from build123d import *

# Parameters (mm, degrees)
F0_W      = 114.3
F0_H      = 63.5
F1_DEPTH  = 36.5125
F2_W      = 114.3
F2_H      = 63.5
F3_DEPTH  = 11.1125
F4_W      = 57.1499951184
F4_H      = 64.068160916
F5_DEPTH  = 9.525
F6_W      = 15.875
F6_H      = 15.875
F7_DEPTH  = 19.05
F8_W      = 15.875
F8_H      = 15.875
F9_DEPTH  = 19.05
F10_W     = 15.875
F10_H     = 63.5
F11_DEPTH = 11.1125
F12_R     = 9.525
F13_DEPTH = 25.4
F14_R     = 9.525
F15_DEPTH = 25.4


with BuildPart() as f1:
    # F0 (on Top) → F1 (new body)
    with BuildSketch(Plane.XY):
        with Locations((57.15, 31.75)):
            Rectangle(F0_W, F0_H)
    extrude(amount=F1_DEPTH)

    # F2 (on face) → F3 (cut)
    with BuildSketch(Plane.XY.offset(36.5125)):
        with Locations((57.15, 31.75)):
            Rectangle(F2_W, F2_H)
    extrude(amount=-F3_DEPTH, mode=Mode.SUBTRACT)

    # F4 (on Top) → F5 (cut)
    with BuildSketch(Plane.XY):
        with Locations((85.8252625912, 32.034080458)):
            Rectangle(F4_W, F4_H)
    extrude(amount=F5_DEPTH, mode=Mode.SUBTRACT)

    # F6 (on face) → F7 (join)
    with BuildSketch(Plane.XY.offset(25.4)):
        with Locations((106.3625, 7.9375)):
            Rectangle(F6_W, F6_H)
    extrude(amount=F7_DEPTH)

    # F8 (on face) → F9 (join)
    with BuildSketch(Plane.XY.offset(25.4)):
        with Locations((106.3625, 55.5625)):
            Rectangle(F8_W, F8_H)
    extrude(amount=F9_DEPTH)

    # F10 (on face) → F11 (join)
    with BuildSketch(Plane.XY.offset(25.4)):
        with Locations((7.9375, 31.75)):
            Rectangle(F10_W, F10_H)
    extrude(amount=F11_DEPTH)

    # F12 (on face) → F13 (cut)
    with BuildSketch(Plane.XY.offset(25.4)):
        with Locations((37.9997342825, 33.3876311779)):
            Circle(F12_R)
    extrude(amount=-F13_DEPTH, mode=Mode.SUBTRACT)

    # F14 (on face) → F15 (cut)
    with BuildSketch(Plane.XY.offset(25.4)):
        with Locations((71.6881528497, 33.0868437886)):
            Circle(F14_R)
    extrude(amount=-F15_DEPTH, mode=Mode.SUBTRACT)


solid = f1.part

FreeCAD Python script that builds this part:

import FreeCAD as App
import Part
import Sketcher
Q = App.Units.Quantity

doc = App.newDocument("Part")
body = doc.addObject("PartDesign::Body", "Body")

# Sketch on XY plane
sketch1 = body.newObject("Sketcher::SketchObject", "Sketch")
sketch1.AttachmentSupport = (doc.getObject("XY_Plane"), [""])
sketch1.MapMode = "FlatFace"
sketch1.addGeometry(Part.LineSegment(App.Vector(0, 64, 0), App.Vector(0, 0, 0)), False)
sketch1.addGeometry(Part.LineSegment(App.Vector(0, 0, 0), App.Vector(114, 0, 0)), False)
sketch1.addGeometry(Part.LineSegment(App.Vector(114, 0, 0), App.Vector(114, 64, 0)), False)
sketch1.addGeometry(Part.LineSegment(App.Vector(114, 64, 0), App.Vector(0, 64, 0)), False)
sketch1.addConstraint(Sketcher.Constraint("Coincident", 0, 2, 1, 1))
sketch1.addConstraint(Sketcher.Constraint("Coincident", 1, 2, 2, 1))
sketch1.addConstraint(Sketcher.Constraint("Coincident", 2, 2, 3, 1))
sketch1.addConstraint(Sketcher.Constraint("Coincident", 3, 2, 0, 1))
sketch1.addConstraint(Sketcher.Constraint("Vertical", 0))
sketch1.addConstraint(Sketcher.Constraint("Horizontal", 1))
sketch1.addConstraint(Sketcher.Constraint("Vertical", 2))
sketch1.addConstraint(Sketcher.Constraint("Horizontal", 3))
sketch1.addConstraint(Sketcher.Constraint("Coincident", 0, 2, -1, 1))
sketch1.addConstraint(Sketcher.Constraint("DistanceX", 1, 1, 1, 2, Q("4.5 in")))
sketch1.addConstraint(Sketcher.Constraint("DistanceY", 0, 2, 0, 1, Q("2.5 in")))
pad1 = body.newObject("PartDesign::Pad", "Pad")
pad1.Profile = sketch1
pad1.Length = Q("1.4375 in")

# Sketch on XY plane
sketch2 = body.newObject("Sketcher::SketchObject", "Sketch001")
sketch2.AttachmentSupport = (doc.getObject("XY_Plane"), [""])
sketch2.MapMode = "FlatFace"
sketch2.AttachmentOffset = App.Placement(App.Vector(0, 0, 1.4375 * 25.4), App.Rotation())
sketch2.addGeometry(Part.LineSegment(App.Vector(0, 64, 0), App.Vector(0, 0, 0)), False)
sketch2.addGeometry(Part.LineSegment(App.Vector(0, 0, 0), App.Vector(114, 0, 0)), False)
sketch2.addGeometry(Part.LineSegment(App.Vector(114, 0, 0), App.Vector(114, 64, 0)), False)
sketch2.addGeometry(Part.LineSegment(App.Vector(114, 64, 0), App.Vector(0, 64, 0)), False)
sketch2.addConstraint(Sketcher.Constraint("Coincident", 0, 2, 1, 1))
sketch2.addConstraint(Sketcher.Constraint("Coincident", 1, 2, 2, 1))
sketch2.addConstraint(Sketcher.Constraint("Coincident", 2, 2, 3, 1))
sketch2.addConstraint(Sketcher.Constraint("Coincident", 3, 2, 0, 1))
sketch2.addConstraint(Sketcher.Constraint("Vertical", 0))
sketch2.addConstraint(Sketcher.Constraint("Horizontal", 1))
sketch2.addConstraint(Sketcher.Constraint("Vertical", 2))
sketch2.addConstraint(Sketcher.Constraint("Horizontal", 3))
sketch2.addConstraint(Sketcher.Constraint("Coincident", 0, 2, -1, 1))
sketch2.addConstraint(Sketcher.Constraint("DistanceX", 1, 1, 1, 2, Q("4.5 in")))
sketch2.addConstraint(Sketcher.Constraint("DistanceY", 0, 2, 0, 1, Q("2.5 in")))
pocket1 = body.newObject("PartDesign::Pocket", "Pocket")
pocket1.Profile = sketch2
pocket1.Length = Q("0.4375 in")

# Sketch on XY plane
sketch3 = body.newObject("Sketcher::SketchObject", "Sketch002")
sketch3.AttachmentSupport = (doc.getObject("XY_Plane"), [""])
sketch3.MapMode = "FlatFace"
sketch3.addGeometry(Part.LineSegment(App.Vector(57, 64, 0), App.Vector(57, 0, 0)), False)
sketch3.addGeometry(Part.LineSegment(App.Vector(57, 0, 0), App.Vector(114, 0, 0)), False)
sketch3.addGeometry(Part.LineSegment(App.Vector(114, 0, 0), App.Vector(114, 64, 0)), False)
sketch3.addGeometry(Part.LineSegment(App.Vector(114, 64, 0), App.Vector(57, 64, 0)), False)
sketch3.addConstraint(Sketcher.Constraint("Coincident", 0, 2, 1, 1))
sketch3.addConstraint(Sketcher.Constraint("Coincident", 1, 2, 2, 1))
sketch3.addConstraint(Sketcher.Constraint("Coincident", 2, 2, 3, 1))
sketch3.addConstraint(Sketcher.Constraint("Coincident", 3, 2, 0, 1))
sketch3.addConstraint(Sketcher.Constraint("Vertical", 0))
sketch3.addConstraint(Sketcher.Constraint("Horizontal", 1))
sketch3.addConstraint(Sketcher.Constraint("Vertical", 2))
sketch3.addConstraint(Sketcher.Constraint("Horizontal", 3))
sketch3.addConstraint(Sketcher.Constraint("PointOnObject", 0, 2, -1))
sketch3.addConstraint(Sketcher.Constraint("DistanceX", 1, 1, 1, 2, Q("2.2499998 in")))
sketch3.addConstraint(Sketcher.Constraint("DistanceY", 0, 2, 0, 1, 64.068161))
sketch3.addConstraint(Sketcher.Constraint("DistanceX", -1, 1, 1, 2, 114.40026))
pocket2 = body.newObject("PartDesign::Pocket", "Pocket001")
pocket2.Profile = sketch3
pocket2.Length = Q("0.375 in")
pocket2.Reversed = True

# Sketch on XY plane
sketch4 = body.newObject("Sketcher::SketchObject", "Sketch003")
sketch4.AttachmentSupport = (doc.getObject("XY_Plane"), [""])
sketch4.MapMode = "FlatFace"
sketch4.AttachmentOffset = App.Placement(App.Vector(0, 0, 1 * 25.4), App.Rotation())
sketch4.addGeometry(Part.LineSegment(App.Vector(98, 16, 0), App.Vector(98, 0, 0)), False)
sketch4.addGeometry(Part.LineSegment(App.Vector(98, 0, 0), App.Vector(114, 0, 0)), False)
sketch4.addGeometry(Part.LineSegment(App.Vector(114, 0, 0), App.Vector(114, 16, 0)), False)
sketch4.addGeometry(Part.LineSegment(App.Vector(114, 16, 0), App.Vector(98, 16, 0)), False)
sketch4.addConstraint(Sketcher.Constraint("Coincident", 0, 2, 1, 1))
sketch4.addConstraint(Sketcher.Constraint("Coincident", 1, 2, 2, 1))
sketch4.addConstraint(Sketcher.Constraint("Coincident", 2, 2, 3, 1))
sketch4.addConstraint(Sketcher.Constraint("Coincident", 3, 2, 0, 1))
sketch4.addConstraint(Sketcher.Constraint("Vertical", 0))
sketch4.addConstraint(Sketcher.Constraint("Horizontal", 1))
sketch4.addConstraint(Sketcher.Constraint("Vertical", 2))
sketch4.addConstraint(Sketcher.Constraint("Horizontal", 3))
sketch4.addConstraint(Sketcher.Constraint("PointOnObject", 0, 2, -1))
sketch4.addConstraint(Sketcher.Constraint("Equal", 3, 0))
sketch4.addConstraint(Sketcher.Constraint("DistanceX", -1, 1, 1, 2, Q("4.5 in")))
sketch4.addConstraint(Sketcher.Constraint("DistanceX", 1, 1, 1, 2, Q("0.625 in")))
pad2 = body.newObject("PartDesign::Pad", "Pad001")
pad2.Profile = sketch4
pad2.Length = Q("0.75 in")

# Sketch on XY plane
sketch5 = body.newObject("Sketcher::SketchObject", "Sketch004")
sketch5.AttachmentSupport = (doc.getObject("XY_Plane"), [""])
sketch5.MapMode = "FlatFace"
sketch5.AttachmentOffset = App.Placement(App.Vector(0, 0, 1 * 25.4), App.Rotation())
sketch5.addGeometry(Part.LineSegment(App.Vector(98, 64, 0), App.Vector(98, 48, 0)), False)
sketch5.addGeometry(Part.LineSegment(App.Vector(98, 48, 0), App.Vector(114, 48, 0)), False)
sketch5.addGeometry(Part.LineSegment(App.Vector(114, 48, 0), App.Vector(114, 64, 0)), False)
sketch5.addGeometry(Part.LineSegment(App.Vector(114, 64, 0), App.Vector(98, 64, 0)), False)
sketch5.addConstraint(Sketcher.Constraint("Coincident", 0, 2, 1, 1))
sketch5.addConstraint(Sketcher.Constraint("Coincident", 1, 2, 2, 1))
sketch5.addConstraint(Sketcher.Constraint("Coincident", 2, 2, 3, 1))
sketch5.addConstraint(Sketcher.Constraint("Coincident", 3, 2, 0, 1))
sketch5.addConstraint(Sketcher.Constraint("Vertical", 0))
sketch5.addConstraint(Sketcher.Constraint("Horizontal", 1))
sketch5.addConstraint(Sketcher.Constraint("Vertical", 2))
sketch5.addConstraint(Sketcher.Constraint("Horizontal", 3))
sketch5.addConstraint(Sketcher.Constraint("Equal", 3, 0))
sketch5.addConstraint(Sketcher.Constraint("DistanceX", -1, 1, 1, 2, Q("4.5 in")))
sketch5.addConstraint(Sketcher.Constraint("DistanceY", -1, 1, 2, 2, Q("2.5 in")))
sketch5.addConstraint(Sketcher.Constraint("DistanceX", 1, 1, 1, 2, Q("0.625 in")))
pad3 = body.newObject("PartDesign::Pad", "Pad002")
pad3.Profile = sketch5
pad3.Length = Q("0.75 in")

# Sketch on XY plane
sketch6 = body.newObject("Sketcher::SketchObject", "Sketch005")
sketch6.AttachmentSupport = (doc.getObject("XY_Plane"), [""])
sketch6.MapMode = "FlatFace"
sketch6.AttachmentOffset = App.Placement(App.Vector(0, 0, 1 * 25.4), App.Rotation())
sketch6.addGeometry(Part.LineSegment(App.Vector(0, 64, 0), App.Vector(0, 0, 0)), False)
sketch6.addGeometry(Part.LineSegment(App.Vector(0, 0, 0), App.Vector(16, 0, 0)), False)
sketch6.addGeometry(Part.LineSegment(App.Vector(16, 0, 0), App.Vector(16, 64, 0)), False)
sketch6.addGeometry(Part.LineSegment(App.Vector(16, 64, 0), App.Vector(0, 64, 0)), False)
sketch6.addConstraint(Sketcher.Constraint("Coincident", 0, 2, 1, 1))
sketch6.addConstraint(Sketcher.Constraint("Coincident", 1, 2, 2, 1))
sketch6.addConstraint(Sketcher.Constraint("Coincident", 2, 2, 3, 1))
sketch6.addConstraint(Sketcher.Constraint("Coincident", 3, 2, 0, 1))
sketch6.addConstraint(Sketcher.Constraint("Vertical", 0))
sketch6.addConstraint(Sketcher.Constraint("Horizontal", 1))
sketch6.addConstraint(Sketcher.Constraint("Vertical", 2))
sketch6.addConstraint(Sketcher.Constraint("Horizontal", 3))
sketch6.addConstraint(Sketcher.Constraint("Coincident", 0, 2, -1, 1))
sketch6.addConstraint(Sketcher.Constraint("DistanceY", 0, 2, 0, 1, Q("2.5 in")))
sketch6.addConstraint(Sketcher.Constraint("DistanceX", 1, 1, 1, 2, Q("0.625 in")))
pad4 = body.newObject("PartDesign::Pad", "Pad003")
pad4.Profile = sketch6
pad4.Length = Q("0.4375 in")

# Sketch on XY plane
sketch7 = body.newObject("Sketcher::SketchObject", "Sketch006")
sketch7.AttachmentSupport = (doc.getObject("XY_Plane"), [""])
sketch7.MapMode = "FlatFace"
sketch7.AttachmentOffset = App.Placement(App.Vector(0, 0, 1 * 25.4), App.Rotation())
sketch7.addGeometry(Part.Circle(App.Vector(38, 33, 0), App.Vector(0, 0, 1), 10), False)
sketch7.addConstraint(Sketcher.Constraint("Diameter", 0, Q("0.75 in")))
sketch7.addConstraint(Sketcher.Constraint("DistanceY", -1, 1, 0, 3, 33.387631))
sketch7.addConstraint(Sketcher.Constraint("DistanceX", -1, 1, 0, 3, 37.999734))
pocket3 = body.newObject("PartDesign::Pocket", "Pocket002")
pocket3.Profile = sketch7
pocket3.Length = Q("1 in")

# Sketch on XY plane
sketch8 = body.newObject("Sketcher::SketchObject", "Sketch007")
sketch8.AttachmentSupport = (doc.getObject("XY_Plane"), [""])
sketch8.MapMode = "FlatFace"
sketch8.AttachmentOffset = App.Placement(App.Vector(0, 0, 1 * 25.4), App.Rotation())
sketch8.addGeometry(Part.Circle(App.Vector(72, 33, 0), App.Vector(0, 0, 1), 10), False)
sketch8.addConstraint(Sketcher.Constraint("Diameter", 0, Q("0.75 in")))
sketch8.addConstraint(Sketcher.Constraint("DistanceX", -1, 1, 0, 3, 71.688153))
sketch8.addConstraint(Sketcher.Constraint("DistanceY", -1, 1, 0, 3, 33.086844))
pocket4 = body.newObject("PartDesign::Pocket", "Pocket003")
pocket4.Profile = sketch8
pocket4.Length = Q("1 in")

doc.recompute()
